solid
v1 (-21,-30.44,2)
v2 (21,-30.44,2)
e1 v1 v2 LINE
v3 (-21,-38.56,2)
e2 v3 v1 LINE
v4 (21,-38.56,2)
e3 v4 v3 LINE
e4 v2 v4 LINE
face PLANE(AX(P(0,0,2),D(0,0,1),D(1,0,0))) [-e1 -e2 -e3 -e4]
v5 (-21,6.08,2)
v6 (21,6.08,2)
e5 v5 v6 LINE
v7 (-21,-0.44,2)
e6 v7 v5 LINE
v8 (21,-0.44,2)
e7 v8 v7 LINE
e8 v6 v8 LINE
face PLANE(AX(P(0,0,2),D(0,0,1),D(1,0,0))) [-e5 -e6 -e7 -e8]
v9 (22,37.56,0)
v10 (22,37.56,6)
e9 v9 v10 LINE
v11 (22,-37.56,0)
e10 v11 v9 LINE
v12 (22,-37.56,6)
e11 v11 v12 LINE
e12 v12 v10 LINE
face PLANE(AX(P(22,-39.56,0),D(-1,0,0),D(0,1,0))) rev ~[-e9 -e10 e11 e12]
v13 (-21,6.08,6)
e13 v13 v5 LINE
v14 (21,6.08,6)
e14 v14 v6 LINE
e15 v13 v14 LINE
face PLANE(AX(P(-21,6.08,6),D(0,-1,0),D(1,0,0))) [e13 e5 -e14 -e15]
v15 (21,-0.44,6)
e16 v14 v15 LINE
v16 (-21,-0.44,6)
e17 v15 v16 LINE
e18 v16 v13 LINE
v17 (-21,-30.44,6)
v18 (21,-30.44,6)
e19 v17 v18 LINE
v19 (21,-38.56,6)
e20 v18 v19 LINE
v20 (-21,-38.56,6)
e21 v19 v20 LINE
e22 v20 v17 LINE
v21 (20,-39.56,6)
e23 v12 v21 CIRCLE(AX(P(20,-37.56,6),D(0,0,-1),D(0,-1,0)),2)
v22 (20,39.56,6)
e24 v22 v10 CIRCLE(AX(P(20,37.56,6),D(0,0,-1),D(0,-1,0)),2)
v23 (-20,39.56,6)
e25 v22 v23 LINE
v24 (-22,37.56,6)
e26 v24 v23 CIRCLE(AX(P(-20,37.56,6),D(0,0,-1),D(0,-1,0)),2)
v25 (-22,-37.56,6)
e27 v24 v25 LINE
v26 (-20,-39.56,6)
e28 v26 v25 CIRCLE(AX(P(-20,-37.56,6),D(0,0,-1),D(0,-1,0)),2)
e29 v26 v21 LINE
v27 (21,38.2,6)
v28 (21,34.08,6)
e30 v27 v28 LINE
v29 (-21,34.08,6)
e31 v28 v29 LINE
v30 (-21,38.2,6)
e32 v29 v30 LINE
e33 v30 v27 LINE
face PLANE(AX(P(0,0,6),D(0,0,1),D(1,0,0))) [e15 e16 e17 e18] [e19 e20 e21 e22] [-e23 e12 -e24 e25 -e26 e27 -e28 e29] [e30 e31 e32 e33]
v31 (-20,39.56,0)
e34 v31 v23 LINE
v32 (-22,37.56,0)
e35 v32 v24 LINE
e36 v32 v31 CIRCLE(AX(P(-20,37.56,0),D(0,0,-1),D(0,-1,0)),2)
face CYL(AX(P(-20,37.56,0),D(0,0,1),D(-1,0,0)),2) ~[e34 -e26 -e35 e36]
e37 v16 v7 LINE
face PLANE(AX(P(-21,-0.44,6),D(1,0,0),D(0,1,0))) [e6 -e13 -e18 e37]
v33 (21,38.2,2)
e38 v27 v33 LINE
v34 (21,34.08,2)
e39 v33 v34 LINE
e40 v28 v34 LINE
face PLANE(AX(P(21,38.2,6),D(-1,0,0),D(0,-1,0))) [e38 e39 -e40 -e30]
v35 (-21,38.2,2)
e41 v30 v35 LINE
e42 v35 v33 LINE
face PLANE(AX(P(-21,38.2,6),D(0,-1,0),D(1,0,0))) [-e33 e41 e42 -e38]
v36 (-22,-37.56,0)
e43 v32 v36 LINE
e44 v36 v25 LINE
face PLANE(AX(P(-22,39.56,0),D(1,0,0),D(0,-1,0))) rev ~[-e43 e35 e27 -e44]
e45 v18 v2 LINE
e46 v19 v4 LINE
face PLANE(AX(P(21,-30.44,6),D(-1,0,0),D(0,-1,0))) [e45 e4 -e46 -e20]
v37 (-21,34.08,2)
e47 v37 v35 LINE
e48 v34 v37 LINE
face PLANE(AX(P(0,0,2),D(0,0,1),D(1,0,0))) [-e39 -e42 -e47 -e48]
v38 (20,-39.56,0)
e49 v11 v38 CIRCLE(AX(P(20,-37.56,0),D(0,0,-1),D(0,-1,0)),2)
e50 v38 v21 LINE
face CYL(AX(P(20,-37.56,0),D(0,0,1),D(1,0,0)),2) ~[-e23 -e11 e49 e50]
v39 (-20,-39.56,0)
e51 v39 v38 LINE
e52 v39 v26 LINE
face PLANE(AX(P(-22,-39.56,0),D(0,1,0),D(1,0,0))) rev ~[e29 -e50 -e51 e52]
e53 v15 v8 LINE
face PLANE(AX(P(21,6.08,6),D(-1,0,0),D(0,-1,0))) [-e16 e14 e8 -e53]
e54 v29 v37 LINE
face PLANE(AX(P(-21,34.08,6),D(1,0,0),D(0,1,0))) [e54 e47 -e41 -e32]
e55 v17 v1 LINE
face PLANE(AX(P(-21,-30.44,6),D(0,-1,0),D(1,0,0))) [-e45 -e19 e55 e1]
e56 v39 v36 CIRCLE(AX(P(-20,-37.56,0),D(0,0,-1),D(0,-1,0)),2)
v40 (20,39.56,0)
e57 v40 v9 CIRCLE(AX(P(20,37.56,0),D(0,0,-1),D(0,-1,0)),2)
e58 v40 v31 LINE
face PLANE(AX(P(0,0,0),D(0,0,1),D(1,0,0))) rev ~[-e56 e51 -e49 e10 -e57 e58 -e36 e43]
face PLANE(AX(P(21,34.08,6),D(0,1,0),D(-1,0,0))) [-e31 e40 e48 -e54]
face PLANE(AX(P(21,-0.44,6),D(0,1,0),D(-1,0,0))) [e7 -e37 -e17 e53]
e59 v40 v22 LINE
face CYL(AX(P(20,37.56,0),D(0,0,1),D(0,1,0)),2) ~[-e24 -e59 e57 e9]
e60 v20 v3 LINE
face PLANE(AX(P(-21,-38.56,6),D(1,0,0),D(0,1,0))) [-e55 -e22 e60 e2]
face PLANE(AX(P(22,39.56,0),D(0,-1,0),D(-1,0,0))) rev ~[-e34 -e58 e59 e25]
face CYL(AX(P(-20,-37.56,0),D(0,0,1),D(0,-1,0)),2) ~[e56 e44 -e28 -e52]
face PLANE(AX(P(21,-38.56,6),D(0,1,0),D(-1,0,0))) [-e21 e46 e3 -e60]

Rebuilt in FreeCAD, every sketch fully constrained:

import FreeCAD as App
import Part
import Sketcher
from FreeCAD import Vector
Q = App.Units.Quantity


def edges_at(feature, points):
    """Names of the edges that pass closest to the given points."""
    edges = feature.Shape.Edges
    near = lambda p: min(range(len(edges)), key=lambda i: edges[i].distToShape(Part.Vertex(*p))[0])
    return sorted({f"Edge{near(p) + 1}" for p in points})


def add_polygon(sketch, points):
    """Adds a closed chain of lines whose ends are joined by coincident constraints."""
    first, n = sketch.GeometryCount, len(points)
    for a, b in zip(points, points[1:] + points[:1]):
        sketch.addGeometry(Part.LineSegment(App.Vector(*a, 0), App.Vector(*b, 0)), False)
    for i in range(n):
        sketch.addConstraint(Sketcher.Constraint("Coincident", first + i, 2, first + (i + 1) % n, 1))

doc = App.newDocument("Part")
params = doc.addObject("Spreadsheet::Sheet", "Params")
for row, (alias, value) in enumerate([
    ("sketch1_width", "44 mm"),
    ("sketch1_height", "79.12 mm"),
    ("pad1_length", "6 mm"),
    ("sketch2_width", "42 mm"),
    ("sketch2_height", "8.12 mm"),
    ("pocket1_length", "4 mm"),
    ("sketch3_width", "42 mm"),
    ("sketch3_height", "6.52 mm"),
    ("pocket2_length", "4 mm"),
    ("sketch4_width", "42 mm"),
    ("sketch4_height", "4.12 mm"),
    ("pocket3_length", "4 mm"),
    ("fillet_radius", "2 mm"),
    ("fillet2_radius", "2 mm"),
    ("fillet3_radius", "2 mm"),
    ("fillet4_radius", "2 mm"),
], start=1):
    params.set(f"A{row}", alias)
    params.set(f"B{row}", "=" + value)
    params.setAlias(f"B{row}", alias)

body = doc.addObject("PartDesign::Body", "Body")

# Sketch on XY plane
sketch1 = doc.addObject("Sketcher::SketchObject", "Sketch")
body.addObject(sketch1)
sketch1.AttachmentSupport = (doc.XY_Plane, [""])
sketch1.MapMode = "FlatFace"
add_polygon(sketch1, [(-22, 40), (-22, -40), (22, -40), (22, 40)])  # lines 0-3
sketch1.addConstraint([
    Sketcher.Constraint("Vertical", 0),
    Sketcher.Constraint("Horizontal", 1),
    Sketcher.Constraint("Vertical", 2),
    Sketcher.Constraint("Horizontal", 3),
    Sketcher.Constraint("Symmetric", 0, 2, 2, 2, -1, 1),
    Sketcher.Constraint("DistanceX", 1, 1, 1, 2, Q("44 mm")),
    Sketcher.Constraint("DistanceY", 0, 2, 0, 1, Q("79.12 mm")),
])
sketch1.setExpression("Constraints[9]", "Params.sketch1_width")
sketch1.setExpression("Constraints[10]", "Params.sketch1_height")
pad1 = doc.addObject("PartDesign::Pad", "Pad")
body.addObject(pad1)
pad1.Profile = sketch1
pad1.setExpression("Length", "Params.pad1_length")

# Sketch on XY plane
sketch2 = doc.addObject("Sketcher::SketchObject", "Sketch001")
body.addObject(sketch2)
sketch2.AttachmentSupport = (doc.XY_Plane, [""])
sketch2.MapMode = "FlatFace"
sketch2.AttachmentOffset = App.Placement(Vector(0, 0, 6), App.Rotation())
add_polygon(sketch2, [(-21, -39), (21, -39), (21, -30), (-21, -30)])  # lines 0-3
sketch2.addConstraint([
    Sketcher.Constraint("Horizontal", 0),
    Sketcher.Constraint("Vertical", 1),
    Sketcher.Constraint("Horizontal", 2),
    Sketcher.Constraint("Vertical", 3),
    Sketcher.Constraint("DistanceX", 0, 1, 0, 2, Q("42 mm")),
    Sketcher.Constraint("DistanceY", 1, 1, 1, 2, Q("8.12 mm")),
    Sketcher.Constraint("DistanceX", -1, 1, 0, 2, Q("21 mm")),
    Sketcher.Constraint("DistanceY", 0, 2, -1, 1, Q("38.56 mm")),
])
sketch2.setExpression("Constraints[8]", "Params.sketch2_width")
sketch2.setExpression("Constraints[9]", "Params.sketch2_height")
pocket1 = doc.addObject("PartDesign::Pocket", "Pocket")
body.addObject(pocket1)
pocket1.Profile = sketch2
pocket1.setExpression("Length", "Params.pocket1_length")

# Sketch on XY plane
sketch3 = doc.addObject("Sketcher::SketchObject", "Sketch002")
body.addObject(sketch3)
sketch3.AttachmentSupport = (doc.XY_Plane, [""])
sketch3.MapMode = "FlatFace"
sketch3.AttachmentOffset = App.Placement(Vector(0, 0, 6), App.Rotation())
add_polygon(sketch3, [(-21, 0), (21, 0), (21, 6), (-21, 6)])  # lines 0-3
sketch3.addConstraint([
    Sketcher.Constraint("Horizontal", 0),
    Sketcher.Constraint("Vertical", 1),
    Sketcher.Constraint("Horizontal", 2),
    Sketcher.Constraint("Vertical", 3),
    Sketcher.Constraint("DistanceX", 0, 1, 0, 2, Q("42 mm")),
    Sketcher.Constraint("DistanceY", 1, 1, 1, 2, Q("6.52 mm")),
    Sketcher.Constraint("DistanceX", -1, 1, 0, 2, Q("21 mm")),
    Sketcher.Constraint("DistanceY", 0, 2, -1, 1, Q("0.44 mm")),
])
sketch3.setExpression("Constraints[8]", "Params.sketch3_width")
sketch3.setExpression("Constraints[9]", "Params.sketch3_height")
pocket2 = doc.addObject("PartDesign::Pocket", "Pocket001")
body.addObject(pocket2)
pocket2.Profile = sketch3
pocket2.setExpression("Length", "Params.pocket2_length")

# Sketch on XY plane
sketch4 = doc.addObject("Sketcher::SketchObject", "Sketch003")
body.addObject(sketch4)
sketch4.AttachmentSupport = (doc.XY_Plane, [""])
sketch4.MapMode = "FlatFace"
sketch4.AttachmentOffset = App.Placement(Vector(0, 0, 6), App.Rotation())
add_polygon(sketch4, [(21, 38.2), (-21, 38.2), (-21, 34.1), (21, 34.1)])  # lines 0-3
sketch4.addConstraint([
    Sketcher.Constraint("Horizontal", 0),
    Sketcher.Constraint("Vertical", 1),
    Sketcher.Constraint("Horizontal", 2),
    Sketcher.Constraint("Vertical", 3),
    Sketcher.Constraint("DistanceX", 0, 2, 0, 1, Q("42 mm")),
    Sketcher.Constraint("DistanceY", 1, 2, 1, 1, Q("4.12 mm")),
    Sketcher.Constraint("DistanceX", 0, 2, -1, 1, Q("21 mm")),
    Sketcher.Constraint("DistanceY", -1, 1, 0, 2, Q("38.2 mm")),
])
sketch4.setExpression("Constraints[8]", "Params.sketch4_width")
sketch4.setExpression("Constraints[9]", "Params.sketch4_height")
pocket3 = doc.addObject("PartDesign::Pocket", "Pocket002")
body.addObject(pocket3)
pocket3.Profile = sketch4
pocket3.setExpression("Length", "Params.pocket3_length")
doc.recompute()

fillet = doc.addObject("PartDesign::Fillet", "Fillet")
body.addObject(fillet)
fillet.Base = (pocket3, edges_at(pocket3, [(-22, 39.56, 3)]))
fillet.setExpression("Radius", "Params.fillet_radius")
doc.recompute()

fillet2 = doc.addObject("PartDesign::Fillet", "Fillet001")
body.addObject(fillet2)
fillet2.Base = (fillet, edges_at(fillet, [(22, 39.56, 3)]))
fillet2.setExpression("Radius", "Params.fillet2_radius")
doc.recompute()

fillet3 = doc.addObject("PartDesign::Fillet", "Fillet002")
body.addObject(fillet3)
fillet3.Base = (fillet2, edges_at(fillet2, [(22, -39.56, 3)]))
fillet3.setExpression("Radius", "Params.fillet3_radius")
doc.recompute()

fillet4 = doc.addObject("PartDesign::Fillet", "Fillet003")
body.addObject(fillet4)
fillet4.Base = (fillet3, edges_at(fillet3, [(-22, -39.56, 3)]))
fillet4.setExpression("Radius", "Params.fillet4_radius")

doc.recompute()
